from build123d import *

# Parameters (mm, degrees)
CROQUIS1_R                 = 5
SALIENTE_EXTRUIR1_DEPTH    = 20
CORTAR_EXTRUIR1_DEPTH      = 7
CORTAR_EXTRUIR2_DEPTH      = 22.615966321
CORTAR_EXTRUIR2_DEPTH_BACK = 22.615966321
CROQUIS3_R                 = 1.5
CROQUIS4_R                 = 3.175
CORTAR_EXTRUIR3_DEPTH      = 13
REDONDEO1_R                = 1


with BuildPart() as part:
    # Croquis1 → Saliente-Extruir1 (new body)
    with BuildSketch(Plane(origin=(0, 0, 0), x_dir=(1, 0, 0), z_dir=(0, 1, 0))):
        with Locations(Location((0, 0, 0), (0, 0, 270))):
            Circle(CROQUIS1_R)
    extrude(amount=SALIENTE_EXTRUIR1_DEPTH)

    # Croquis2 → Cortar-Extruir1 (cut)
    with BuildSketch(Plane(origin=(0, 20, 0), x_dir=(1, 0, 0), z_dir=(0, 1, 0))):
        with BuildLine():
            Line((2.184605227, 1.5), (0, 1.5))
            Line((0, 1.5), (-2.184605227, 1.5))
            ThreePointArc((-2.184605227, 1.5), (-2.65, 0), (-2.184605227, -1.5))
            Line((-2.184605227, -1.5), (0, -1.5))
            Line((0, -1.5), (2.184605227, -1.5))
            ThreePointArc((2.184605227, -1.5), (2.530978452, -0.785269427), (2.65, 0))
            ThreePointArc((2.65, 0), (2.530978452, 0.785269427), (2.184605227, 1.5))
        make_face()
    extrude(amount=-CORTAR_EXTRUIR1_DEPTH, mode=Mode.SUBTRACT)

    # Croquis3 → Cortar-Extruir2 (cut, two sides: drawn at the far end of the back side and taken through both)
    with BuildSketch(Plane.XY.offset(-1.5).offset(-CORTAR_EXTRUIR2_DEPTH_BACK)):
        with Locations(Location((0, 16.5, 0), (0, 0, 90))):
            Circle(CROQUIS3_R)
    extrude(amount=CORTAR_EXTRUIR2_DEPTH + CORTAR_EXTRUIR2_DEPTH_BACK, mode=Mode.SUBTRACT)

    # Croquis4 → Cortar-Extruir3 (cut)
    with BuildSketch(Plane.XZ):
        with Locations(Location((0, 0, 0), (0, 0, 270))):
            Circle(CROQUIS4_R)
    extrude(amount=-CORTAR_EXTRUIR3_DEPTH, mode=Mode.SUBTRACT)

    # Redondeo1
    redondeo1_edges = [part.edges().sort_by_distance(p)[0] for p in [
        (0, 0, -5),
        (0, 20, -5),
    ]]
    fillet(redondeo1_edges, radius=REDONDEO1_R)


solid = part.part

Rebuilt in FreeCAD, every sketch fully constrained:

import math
import FreeCAD as App
import Part
import Sketcher
from FreeCAD import Vector


def edges_at(feature, points):
    """Names of the edges that pass closest to the given points."""
    edges = feature.Shape.Edges
    near = lambda p: min(range(len(edges)), key=lambda i: edges[i].distToShape(Part.Vertex(*p))[0])
    return sorted({f"Edge{near(p) + 1}" for p in points})

doc = App.newDocument("Part")
body = doc.addObject("PartDesign::Body", "Body")

# Sketch on XZ plane
sketch1 = body.newObject("Sketcher::SketchObject", "Sketch")
sketch1.AttachmentSupport = (doc.getObject("XZ_Plane"), [""])
sketch1.MapMode = "FlatFace"
sketch1.addGeometry(Part.Circle(Vector(0, 0, 0), Vector(0, 0, 1), 5), False)
sketch1.addConstraint([
    Sketcher.Constraint("Coincident", 0, 3, -1, 1),
    Sketcher.Constraint("Diameter", 0, 10.0),
])
pad1 = body.newObject("PartDesign::Pad", "Pad")
pad1.Profile = sketch1
pad1.Length = 20
pad1.Reversed = True

# Sketch on XZ plane
sketch2 = body.newObject("Sketcher::SketchObject", "Sketch001")
sketch2.AttachmentSupport = (doc.getObject("XZ_Plane"), [""])
sketch2.MapMode = "FlatFace"
sketch2.AttachmentOffset = App.Placement(Vector(0, 0, -20), App.Rotation())
sketch2.addGeometry([
    Part.LineSegment(Vector(2.2, -1.5, 0), Vector(-2.2, -1.5, 0)),  # 0
    Part.ArcOfCircle(Part.Circle(Vector(0, 0, 0), Vector(0, 0, 1), 2.6), math.radians(146), math.radians(214)),  # 1
    Part.LineSegment(Vector(-2.2, 1.5, 0), Vector(2.2, 1.5, 0)),  # 2
    Part.ArcOfCircle(Part.Circle(Vector(0, 0, 0), Vector(0, 0, 1), 2.7), math.radians(0), math.radians(34)),  # 3
    Part.ArcOfCircle(Part.Circle(Vector(0, 0, 0), Vector(0, 0, 1), 2.7), math.radians(-34), math.radians(0)),  # 4
], False)
sketch2.addConstraint([
    Sketcher.Constraint("Coincident", 0, 2, 1, 2),
    Sketcher.Constraint("Coincident", 1, 1, 2, 1),
    Sketcher.Constraint("Coincident", 2, 2, 3, 2),
    Sketcher.Constraint("Tangent", 3, 1, 4, 2),
    Sketcher.Constraint("Coincident", 4, 1, 0, 1),
    Sketcher.Constraint("Horizontal", 0),
    Sketcher.Constraint("Horizontal", 2),
    Sketcher.Constraint("Coincident", 1, 3, -1, 1),
    Sketcher.Constraint("Coincident", 3, 3, -1, 1),
    Sketcher.Constraint("Equal", 1, 3),
    Sketcher.Constraint("Equal", 3, 4),
    Sketcher.Constraint("PointOnObject", 3, 1, -1),
    Sketcher.Constraint("Vertical", 0, 2, 1, 1),
    Sketcher.Constraint("Radius", 1, 2.65),
    Sketcher.Constraint("DistanceY", 0, 2, 1, 1, 3.0),
])
pocket1 = body.newObject("PartDesign::Pocket", "Pocket")
pocket1.Profile = sketch2
pocket1.Length = 7
pocket1.Reversed = True

# Sketch on XY plane
sketch3 = body.newObject("Sketcher::SketchObject", "Sketch002")
sketch3.AttachmentSupport = (doc.getObject("XY_Plane"), [""])
sketch3.MapMode = "FlatFace"
sketch3.AttachmentOffset = App.Placement(Vector(0, 0, -1.5), App.Rotation())
sketch3.addGeometry(Part.Circle(Vector(0, 16.5, 0), Vector(0, 0, 1), 1.5), False)
sketch3.addConstraint([
    Sketcher.Constraint("PointOnObject", 0, 3, -2),
    Sketcher.Constraint("Diameter", 0, 3.0),
    Sketcher.Constraint("DistanceY", -1, 1, 0, 3, 16.5),
])
pocket2 = body.newObject("PartDesign::Pocket", "Pocket001")
pocket2.Profile = sketch3
pocket2.Type = "ThroughAll"
pocket2.Midplane = True

# Sketch on XZ plane
sketch4 = body.newObject("Sketcher::SketchObject", "Sketch003")
sketch4.AttachmentSupport = (doc.getObject("XZ_Plane"), [""])
sketch4.MapMode = "FlatFace"
sketch4.addGeometry(Part.Circle(Vector(0, 0, 0), Vector(0, 0, 1), 3.2), False)
sketch4.addConstraint([
    Sketcher.Constraint("Coincident", 0, 3, -1, 1),
    Sketcher.Constraint("Diameter", 0, 6.35),
])
pocket3 = body.newObject("PartDesign::Pocket", "Pocket002")
pocket3.Profile = sketch4
pocket3.Length = 13
doc.recompute()

fillet = body.newObject("PartDesign::Fillet", "Fillet")
fillet.Base = (pocket3, edges_at(pocket3, [(0, 0, -5), (0, 20, -5)]))
fillet.Radius = 1

doc.recompute()
